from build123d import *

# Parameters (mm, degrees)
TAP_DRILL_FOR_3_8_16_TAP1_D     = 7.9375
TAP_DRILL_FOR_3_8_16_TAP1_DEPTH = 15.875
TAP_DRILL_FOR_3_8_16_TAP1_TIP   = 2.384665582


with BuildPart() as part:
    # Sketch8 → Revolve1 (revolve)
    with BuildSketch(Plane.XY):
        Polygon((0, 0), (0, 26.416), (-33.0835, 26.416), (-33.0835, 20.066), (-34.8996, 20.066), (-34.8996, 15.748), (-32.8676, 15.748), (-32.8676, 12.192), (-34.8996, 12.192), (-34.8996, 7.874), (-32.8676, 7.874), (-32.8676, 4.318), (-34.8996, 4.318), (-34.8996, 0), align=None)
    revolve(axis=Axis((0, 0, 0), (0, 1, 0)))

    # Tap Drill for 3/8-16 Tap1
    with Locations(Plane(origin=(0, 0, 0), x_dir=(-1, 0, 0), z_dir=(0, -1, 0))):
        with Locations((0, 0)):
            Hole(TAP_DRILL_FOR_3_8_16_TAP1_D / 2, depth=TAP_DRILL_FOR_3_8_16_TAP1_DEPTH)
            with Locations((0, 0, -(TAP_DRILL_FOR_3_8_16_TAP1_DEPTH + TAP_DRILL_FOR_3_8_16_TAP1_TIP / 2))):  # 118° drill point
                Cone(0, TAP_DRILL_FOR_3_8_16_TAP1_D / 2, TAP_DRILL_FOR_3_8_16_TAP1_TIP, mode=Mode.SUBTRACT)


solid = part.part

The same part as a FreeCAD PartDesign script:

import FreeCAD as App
import Part
import Sketcher
Q = App.Units.Quantity


def add_polygon(sketch, points):
    """Adds a closed chain of lines whose ends are joined by coincident constraints."""
    first, n = sketch.GeometryCount, len(points)
    for a, b in zip(points, points[1:] + points[:1]):
        sketch.addGeometry(Part.LineSegment(App.Vector(*a, 0), App.Vector(*b, 0)), False)
    for i in range(n):
        sketch.addConstraint(Sketcher.Constraint("Coincident", first + i, 2, first + (i + 1) % n, 1))

doc = App.newDocument("Part")
params = doc.addObject("Spreadsheet::Sheet", "Params")
for row, (alias, value) in enumerate([
    ("sketch1_width", "0.08 in"),
    ("sketch1_height", "1.04 in"),
    ("sketch1_height2", "0.25 in"),
    ("sketch1_height3", "0.17 in"),
    ("sketch1_width2", "1.374 in"),
    ("revolution_angle", "360 deg"),
    ("sketch2_diameter", "0.3125 in"),
    ("hole_diameter", "0.3125 in"),
    ("hole_depth", "0.625 in"),
], start=1):
    params.set(f"A{row}", alias)
    params.set(f"B{row}", "=" + value)
    params.setAlias(f"B{row}", alias)

body = doc.addObject("PartDesign::Body", "Body")

sketch1 = doc.addObject("Sketcher::SketchObject", "Sketch")
body.addObject(sketch1)
sketch1.AttachmentSupport = (doc.XY_Plane, [""])
sketch1.MapMode = "FlatFace"
add_polygon(sketch1, [(0, 0), (0, 26.4), (-33.1, 26.4), (-33.1, 20.1), (-34.9, 20.1), (-34.9, 15.7), (-32.9, 15.7), (-32.9, 12.2), (-34.9, 12.2), (-34.9, 7.9), (-32.9, 7.9), (-32.9, 4.3), (-34.9, 4.3), (-34.9, 0)])
sketch1.addConstraint([
    Sketcher.Constraint("Vertical", 0),
    Sketcher.Constraint("Horizontal", 1),
    Sketcher.Constraint("Vertical", 2),
    Sketcher.Constraint("Horizontal", 3),
    Sketcher.Constraint("Vertical", 4),
    Sketcher.Constraint("Horizontal", 5),
    Sketcher.Constraint("Vertical", 6),
    Sketcher.Constraint("Horizontal", 7),
    Sketcher.Constraint("Vertical", 8),
    Sketcher.Constraint("Horizontal", 9),
    Sketcher.Constraint("Vertical", 10),
    Sketcher.Constraint("Horizontal", 11),
    Sketcher.Constraint("Vertical", 12),
    Sketcher.Constraint("Horizontal", 13),
    Sketcher.Constraint("Coincident", 13, 2, -1, 1),
    Sketcher.Constraint("Vertical", 4, 2, 7, 2),
    Sketcher.Constraint("Vertical", 6, 2, 9, 2),
    Sketcher.Constraint("Vertical", 8, 2, 11, 2),
    Sketcher.Constraint("Equal", 4, 8),
    Sketcher.Constraint("Equal", 6, 10),
    Sketcher.Constraint("Equal", 8, 12),
    Sketcher.Constraint("DistanceX", 5, 1, 5, 2, Q("0.08 in")),
    Sketcher.Constraint("DistanceY", 0, 1, 0, 2, Q("1.04 in")),
    Sketcher.Constraint("DistanceY", 2, 2, 2, 1, Q("0.25 in")),
    Sketcher.Constraint("DistanceY", 4, 2, 4, 1, Q("0.17 in")),
    Sketcher.Constraint("DistanceX", 13, 1, 13, 2, Q("1.374 in")),
    Sketcher.Constraint("DistanceX", 1, 2, 1, 1, Q("1.3025 in")),
])
sketch1.setExpression("Constraints[35]", "Params.sketch1_width")
sketch1.setExpression("Constraints[36]", "Params.sketch1_height")
sketch1.setExpression("Constraints[37]", "Params.sketch1_height2")
sketch1.setExpression("Constraints[38]", "Params.sketch1_height3")
sketch1.setExpression("Constraints[39]", "Params.sketch1_width2")
revolution = doc.addObject("PartDesign::Revolution", "Revolution")
body.addObject(revolution)
revolution.Profile = sketch1
revolution.ReferenceAxis = (sketch1, ["V_Axis"])
revolution.setExpression("Angle", "Params.revolution_angle")

sketch2 = doc.addObject("Sketcher::SketchObject", "Sketch001")
body.addObject(sketch2)
sketch2.AttachmentSupport = (doc.XZ_Plane, [""])
sketch2.MapMode = "FlatFace"
sketch2.addGeometry(Part.Circle(App.Vector(0, 0, 0), App.Vector(0, 0, 1), 4), False)
sketch2.addConstraint([
    Sketcher.Constraint("Coincident", 0, 3, -1, 1),
    Sketcher.Constraint("Diameter", 0, Q("0.3125 in")),
])
sketch2.setExpression("Constraints[1]", "Params.sketch2_diameter")
doc.recompute()
hole = doc.addObject("PartDesign::Hole", "Hole")
body.addObject(hole)
hole.Profile = sketch2
hole.ThreadType = "None"
hole.setExpression("Diameter", "Params.hole_diameter")
hole.DepthType = "Dimension"
hole.setExpression("Depth", "Params.hole_depth")
hole.DrillPoint = "Angled"
hole.DrillPointAngle = 118

doc.recompute()
